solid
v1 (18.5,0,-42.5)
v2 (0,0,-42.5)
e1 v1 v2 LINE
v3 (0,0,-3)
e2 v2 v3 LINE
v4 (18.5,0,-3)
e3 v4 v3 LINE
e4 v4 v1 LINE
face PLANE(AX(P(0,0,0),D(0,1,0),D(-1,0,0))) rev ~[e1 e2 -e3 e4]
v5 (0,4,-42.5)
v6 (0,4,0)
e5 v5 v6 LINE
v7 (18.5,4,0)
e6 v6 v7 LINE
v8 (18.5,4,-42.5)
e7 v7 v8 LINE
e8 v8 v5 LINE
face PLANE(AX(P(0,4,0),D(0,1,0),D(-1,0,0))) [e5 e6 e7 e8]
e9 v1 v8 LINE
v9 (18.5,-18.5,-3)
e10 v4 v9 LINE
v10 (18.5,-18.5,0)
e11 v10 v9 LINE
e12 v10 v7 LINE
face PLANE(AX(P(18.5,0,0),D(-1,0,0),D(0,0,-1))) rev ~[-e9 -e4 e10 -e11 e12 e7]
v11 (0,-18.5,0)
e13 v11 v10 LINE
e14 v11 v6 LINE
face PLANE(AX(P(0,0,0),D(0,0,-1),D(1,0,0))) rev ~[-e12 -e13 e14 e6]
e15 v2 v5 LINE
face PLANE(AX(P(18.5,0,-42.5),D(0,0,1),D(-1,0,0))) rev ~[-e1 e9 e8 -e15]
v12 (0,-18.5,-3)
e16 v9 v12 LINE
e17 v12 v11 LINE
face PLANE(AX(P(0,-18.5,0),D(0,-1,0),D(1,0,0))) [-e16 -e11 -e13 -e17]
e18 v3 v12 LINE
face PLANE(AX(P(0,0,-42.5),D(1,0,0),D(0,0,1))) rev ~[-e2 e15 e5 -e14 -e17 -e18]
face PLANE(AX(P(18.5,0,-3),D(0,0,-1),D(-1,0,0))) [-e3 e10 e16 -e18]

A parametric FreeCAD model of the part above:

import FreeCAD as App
import Part
import Sketcher
from FreeCAD import Vector

doc = App.newDocument("Part")
body = doc.addObject("PartDesign::Body", "Body")

# Sketch on XZ plane
sketch1 = body.newObject("Sketcher::SketchObject", "Sketch")
sketch1.AttachmentSupport = (doc.getObject("XZ_Plane"), [""])
sketch1.MapMode = "FlatFace"
sketch1.addGeometry([
    Part.LineSegment(Vector(0, -42, 0), Vector(0, 0, 0)),
    Part.LineSegment(Vector(0, 0, 0), Vector(18, 0, 0)),
    Part.LineSegment(Vector(18, 0, 0), Vector(18, -42, 0)),
    Part.LineSegment(Vector(18, -42, 0), Vector(0, -42, 0)),
], False)
sketch1.addConstraint([
    Sketcher.Constraint("Coincident", 0, 2, 1, 1),
    Sketcher.Constraint("Coincident", 1, 2, 2, 1),
    Sketcher.Constraint("Coincident", 2, 2, 3, 1),
    Sketcher.Constraint("Coincident", 3, 2, 0, 1),
    Sketcher.Constraint("Vertical", 0),
    Sketcher.Constraint("Horizontal", 1),
    Sketcher.Constraint("Vertical", 2),
    Sketcher.Constraint("Horizontal", 3),
    Sketcher.Constraint("Coincident", 0, 2, -1, 1),
    Sketcher.Constraint("DistanceX", 1, 1, 1, 2, 18.5),
    Sketcher.Constraint("DistanceY", 0, 1, 0, 2, 42.5),
])
pad1 = body.newObject("PartDesign::Pad", "Pad")
pad1.Profile = sketch1
pad1.Length = 4
pad1.Reversed = True

# Sketch on XZ plane
sketch2 = body.newObject("Sketcher::SketchObject", "Sketch001")
sketch2.AttachmentSupport = (doc.getObject("XZ_Plane"), [""])
sketch2.MapMode = "FlatFace"
sketch2.addGeometry([
    Part.LineSegment(Vector(0, 0, 0), Vector(0, -3, 0)),
    Part.LineSegment(Vector(0, -3, 0), Vector(18.5, -3, 0)),
    Part.LineSegment(Vector(18.5, -3, 0), Vector(18.5, 0, 0)),
    Part.LineSegment(Vector(18.5, 0, 0), Vector(0, 0, 0)),
], False)
sketch2.addConstraint([
    Sketcher.Constraint("Coincident", 0, 2, 1, 1),
    Sketcher.Constraint("Coincident", 1, 2, 2, 1),
    Sketcher.Constraint("Coincident", 2, 2, 3, 1),
    Sketcher.Constraint("Coincident", 3, 2, 0, 1),
    Sketcher.Constraint("Vertical", 0),
    Sketcher.Constraint("Horizontal", 1),
    Sketcher.Constraint("Vertical", 2),
    Sketcher.Constraint("Horizontal", 3),
    Sketcher.Constraint("Coincident", 3, 2, -1, 1),
    Sketcher.Constraint("DistanceY", 0, 2, 0, 1, 3.0),
    Sketcher.Constraint("DistanceX", 1, 1, 1, 2, 18.5),
])
pad2 = body.newObject("PartDesign::Pad", "Pad001")
pad2.Profile = sketch2
pad2.Length = 18.5

doc.recompute()
